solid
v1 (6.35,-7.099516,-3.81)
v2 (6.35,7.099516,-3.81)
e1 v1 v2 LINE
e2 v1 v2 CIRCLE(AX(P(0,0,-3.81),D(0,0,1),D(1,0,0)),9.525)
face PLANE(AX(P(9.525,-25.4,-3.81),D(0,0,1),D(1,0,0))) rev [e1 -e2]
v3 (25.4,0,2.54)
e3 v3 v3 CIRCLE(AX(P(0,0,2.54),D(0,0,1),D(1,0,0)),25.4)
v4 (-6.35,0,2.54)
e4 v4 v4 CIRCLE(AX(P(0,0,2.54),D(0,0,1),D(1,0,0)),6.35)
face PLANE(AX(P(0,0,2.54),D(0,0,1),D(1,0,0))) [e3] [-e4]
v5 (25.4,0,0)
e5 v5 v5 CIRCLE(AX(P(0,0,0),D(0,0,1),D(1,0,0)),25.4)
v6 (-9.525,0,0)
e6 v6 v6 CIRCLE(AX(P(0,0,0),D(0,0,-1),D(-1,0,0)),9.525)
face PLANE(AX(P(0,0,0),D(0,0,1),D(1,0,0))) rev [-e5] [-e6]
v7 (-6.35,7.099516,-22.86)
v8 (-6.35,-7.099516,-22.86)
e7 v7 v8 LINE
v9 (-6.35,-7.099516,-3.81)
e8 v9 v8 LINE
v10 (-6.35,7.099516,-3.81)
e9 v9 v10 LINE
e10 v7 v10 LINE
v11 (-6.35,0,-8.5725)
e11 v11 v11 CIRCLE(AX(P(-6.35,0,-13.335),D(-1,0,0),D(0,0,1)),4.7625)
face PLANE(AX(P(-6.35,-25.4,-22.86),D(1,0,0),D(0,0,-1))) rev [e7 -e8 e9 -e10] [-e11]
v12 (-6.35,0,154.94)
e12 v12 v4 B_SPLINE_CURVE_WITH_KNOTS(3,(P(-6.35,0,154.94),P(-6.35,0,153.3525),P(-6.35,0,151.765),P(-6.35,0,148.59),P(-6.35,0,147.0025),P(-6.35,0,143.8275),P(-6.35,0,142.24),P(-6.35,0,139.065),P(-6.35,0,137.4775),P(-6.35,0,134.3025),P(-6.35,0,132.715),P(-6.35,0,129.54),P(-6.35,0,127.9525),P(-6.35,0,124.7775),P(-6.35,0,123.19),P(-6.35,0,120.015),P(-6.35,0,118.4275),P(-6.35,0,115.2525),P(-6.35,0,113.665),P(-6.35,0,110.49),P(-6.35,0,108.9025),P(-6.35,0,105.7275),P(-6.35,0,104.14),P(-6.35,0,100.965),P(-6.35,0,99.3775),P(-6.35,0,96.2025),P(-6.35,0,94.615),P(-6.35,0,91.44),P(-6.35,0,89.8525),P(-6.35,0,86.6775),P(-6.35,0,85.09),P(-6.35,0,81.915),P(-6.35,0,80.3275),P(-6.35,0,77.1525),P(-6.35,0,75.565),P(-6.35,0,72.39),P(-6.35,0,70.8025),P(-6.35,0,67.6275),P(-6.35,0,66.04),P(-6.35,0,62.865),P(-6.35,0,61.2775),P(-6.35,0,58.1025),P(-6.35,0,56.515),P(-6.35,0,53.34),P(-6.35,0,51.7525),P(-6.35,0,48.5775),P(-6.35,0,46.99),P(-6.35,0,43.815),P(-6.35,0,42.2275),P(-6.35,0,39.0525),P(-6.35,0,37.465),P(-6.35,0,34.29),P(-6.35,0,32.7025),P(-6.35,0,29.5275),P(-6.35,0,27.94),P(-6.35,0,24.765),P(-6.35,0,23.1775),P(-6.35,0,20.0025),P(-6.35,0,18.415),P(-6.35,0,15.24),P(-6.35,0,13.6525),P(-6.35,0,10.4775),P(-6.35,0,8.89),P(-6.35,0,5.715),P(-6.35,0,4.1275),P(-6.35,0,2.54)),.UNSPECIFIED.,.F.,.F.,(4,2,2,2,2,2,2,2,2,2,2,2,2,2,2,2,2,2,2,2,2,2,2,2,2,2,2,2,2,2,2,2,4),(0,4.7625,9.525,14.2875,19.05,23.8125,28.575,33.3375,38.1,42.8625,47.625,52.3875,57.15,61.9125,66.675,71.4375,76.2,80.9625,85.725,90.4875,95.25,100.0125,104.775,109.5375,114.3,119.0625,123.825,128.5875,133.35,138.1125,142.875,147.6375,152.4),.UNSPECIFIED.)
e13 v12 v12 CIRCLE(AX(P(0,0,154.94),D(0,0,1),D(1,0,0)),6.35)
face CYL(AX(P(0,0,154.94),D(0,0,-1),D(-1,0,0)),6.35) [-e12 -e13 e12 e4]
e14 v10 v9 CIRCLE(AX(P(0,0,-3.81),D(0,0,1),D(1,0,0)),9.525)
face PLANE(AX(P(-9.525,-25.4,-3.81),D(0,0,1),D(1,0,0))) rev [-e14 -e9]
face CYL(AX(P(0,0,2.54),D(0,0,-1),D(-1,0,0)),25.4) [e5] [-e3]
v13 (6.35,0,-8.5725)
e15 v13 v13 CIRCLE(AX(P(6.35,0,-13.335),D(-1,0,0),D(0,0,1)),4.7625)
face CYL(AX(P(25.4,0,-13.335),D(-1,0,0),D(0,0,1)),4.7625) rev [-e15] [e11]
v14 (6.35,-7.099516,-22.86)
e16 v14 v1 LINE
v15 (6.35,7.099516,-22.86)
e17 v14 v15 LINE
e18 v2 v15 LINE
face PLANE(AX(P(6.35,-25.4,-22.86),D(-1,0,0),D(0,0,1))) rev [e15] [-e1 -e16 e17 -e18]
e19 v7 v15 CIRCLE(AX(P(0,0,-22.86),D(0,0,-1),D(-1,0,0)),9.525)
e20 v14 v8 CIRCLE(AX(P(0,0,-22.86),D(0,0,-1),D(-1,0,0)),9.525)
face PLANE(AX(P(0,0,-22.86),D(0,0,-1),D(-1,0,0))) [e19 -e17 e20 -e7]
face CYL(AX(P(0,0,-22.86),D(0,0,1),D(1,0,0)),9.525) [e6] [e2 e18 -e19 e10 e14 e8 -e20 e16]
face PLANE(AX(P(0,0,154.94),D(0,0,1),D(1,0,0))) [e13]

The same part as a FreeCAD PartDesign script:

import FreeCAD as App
import Part
import Sketcher

V = App.Vector
Q = App.Units.Quantity


def add_polygon(sketch, points):
    """Adds a closed chain of lines whose ends are joined by coincident constraints."""
    first, n = sketch.GeometryCount, len(points)
    for a, b in zip(points, points[1:] + points[:1]):
        sketch.addGeometry(Part.LineSegment(App.Vector(*a, 0), App.Vector(*b, 0)), False)
    for i in range(n):
        sketch.addConstraint(Sketcher.Constraint("Coincident", first + i, 2, first + (i + 1) % n, 1))

doc = App.newDocument("Part")
params = doc.addObject("Spreadsheet::Sheet", "Params")
for row, (alias, value) in enumerate([
    ("sketch1_diameter", "2 in"),
    ("pad1_length", "0.1 in"),
    ("sketch2_diameter", "0.5 in"),
    ("pad2_length", "6 in"),
    ("sketch3_diameter", "0.75 in"),
    ("pad3_length", "0.9 in"),
    ("sketch4_height", "0.75 in"),
    ("sketch4_width", "0.125 in"),
    ("sketch5_diameter", "0.375 in"),
], start=1):
    params.set(f"A{row}", alias)
    params.set(f"B{row}", "=" + value)
    params.setAlias(f"B{row}", alias)

body = doc.addObject("PartDesign::Body", "Body")

sketch1 = body.newObject("Sketcher::SketchObject", "Sketch")
sketch1.AttachmentSupport = (doc.getObject("XY_Plane"), [""])
sketch1.MapMode = "FlatFace"
sketch1.addGeometry(Part.Circle(V(0, 0, 0), V(0, 0, 1), 25), False)
sketch1.addConstraint([
    Sketcher.Constraint("Coincident", 0, 3, -1, 1),
    Sketcher.Constraint("Diameter", 0, Q("2 in")),
])
sketch1.setExpression("Constraints[1]", "Params.sketch1_diameter")
pad1 = body.newObject("PartDesign::Pad", "Pad")
pad1.Profile = sketch1
pad1.setExpression("Length", "Params.pad1_length")

sketch2 = body.newObject("Sketcher::SketchObject", "Sketch001")
sketch2.AttachmentSupport = (doc.getObject("XY_Plane"), [""])
sketch2.MapMode = "FlatFace"
sketch2.AttachmentOffset = App.Placement(V(0, 0, 0.1 * 25.4), App.Rotation())
sketch2.addGeometry(Part.Circle(V(0, 0, 0), V(0, 0, 1), 6), False)
sketch2.addConstraint([
    Sketcher.Constraint("Coincident", 0, 3, -1, 1),
    Sketcher.Constraint("Diameter", 0, Q("0.5 in")),
])
sketch2.setExpression("Constraints[1]", "Params.sketch2_diameter")
pad2 = body.newObject("PartDesign::Pad", "Pad001")
pad2.Profile = sketch2
pad2.setExpression("Length", "Params.pad2_length")

sketch3 = body.newObject("Sketcher::SketchObject", "Sketch002")
sketch3.AttachmentSupport = (doc.getObject("XY_Plane"), [""])
sketch3.MapMode = "FlatFace"
sketch3.addGeometry(Part.Circle(V(0, 0, 0), V(0, 0, 1), 10), False)
sketch3.addConstraint([
    Sketcher.Constraint("Coincident", 0, 3, -1, 1),
    Sketcher.Constraint("Diameter", 0, Q("0.75 in")),
])
sketch3.setExpression("Constraints[1]", "Params.sketch3_diameter")
pad3 = body.newObject("PartDesign::Pad", "Pad002")
pad3.Profile = sketch3
pad3.setExpression("Length", "Params.pad3_length")
pad3.Reversed = True

sketch4 = body.newObject("Sketcher::SketchObject", "Sketch003")
sketch4.AttachmentSupport = (doc.getObject("XZ_Plane"), [""])
sketch4.MapMode = "FlatFace"
add_polygon(sketch4, [(6.3, -22.9), (6.3, -3.8), (9.5, -3.8), (9.5, -22.9)])
add_polygon(sketch4, [(-9.5, -22.9), (-9.5, -3.8), (-6.3, -3.8), (-6.3, -22.9)])
sketch4.addConstraint([
    Sketcher.Constraint("Vertical", 0),
    Sketcher.Constraint("Horizontal", 1),
    Sketcher.Constraint("Vertical", 2),
    Sketcher.Constraint("Horizontal", 3),
    Sketcher.Constraint("Vertical", 4),
    Sketcher.Constraint("Horizontal", 5),
    Sketcher.Constraint("Vertical", 6),
    Sketcher.Constraint("Horizontal", 7),
    Sketcher.Constraint("Symmetric", 1, 2, 4, 2, -2),
    Sketcher.Constraint("Symmetric", 3, 2, 6, 2, -2),
    Sketcher.Constraint("DistanceY", 0, 1, 0, 2, Q("0.75 in")),
    Sketcher.Constraint("DistanceY", 2, 2, -1, 1, Q("0.9 in")),
    Sketcher.Constraint("DistanceX", 5, 2, 0, 2, Q("0.5 in")),
    Sketcher.Constraint("DistanceX", 1, 1, 1, 2, Q("0.125 in")),
])
sketch4.setExpression("Constraints[18]", "Params.sketch4_height")
sketch4.setExpression("Constraints[21]", "Params.sketch4_width")
pocket1 = body.newObject("PartDesign::Pocket", "Pocket")
pocket1.Profile = sketch4
pocket1.Type = "ThroughAll"
pocket1.Midplane = True

sketch5 = body.newObject("Sketcher::SketchObject", "Sketch004")
sketch5.AttachmentSupport = (doc.getObject("YZ_Plane"), [""])
sketch5.MapMode = "FlatFace"
sketch5.AttachmentOffset = App.Placement(V(0, 0, -0.25 * 25.4), App.Rotation())
sketch5.addGeometry(Part.Circle(V(0, -13.3, 0), V(0, 0, 1), 4.8), False)
sketch5.addConstraint([
    Sketcher.Constraint("PointOnObject", 0, 3, -2),
    Sketcher.Constraint("Diameter", 0, Q("0.375 in")),
    Sketcher.Constraint("DistanceY", 0, 3, -1, 1, Q("0.525 in")),
])
sketch5.setExpression("Constraints[1]", "Params.sketch5_diameter")
pocket2 = body.newObject("PartDesign::Pocket", "Pocket001")
pocket2.Profile = sketch5
pocket2.Type = "ThroughAll"
pocket2.Midplane = True

doc.recompute()
